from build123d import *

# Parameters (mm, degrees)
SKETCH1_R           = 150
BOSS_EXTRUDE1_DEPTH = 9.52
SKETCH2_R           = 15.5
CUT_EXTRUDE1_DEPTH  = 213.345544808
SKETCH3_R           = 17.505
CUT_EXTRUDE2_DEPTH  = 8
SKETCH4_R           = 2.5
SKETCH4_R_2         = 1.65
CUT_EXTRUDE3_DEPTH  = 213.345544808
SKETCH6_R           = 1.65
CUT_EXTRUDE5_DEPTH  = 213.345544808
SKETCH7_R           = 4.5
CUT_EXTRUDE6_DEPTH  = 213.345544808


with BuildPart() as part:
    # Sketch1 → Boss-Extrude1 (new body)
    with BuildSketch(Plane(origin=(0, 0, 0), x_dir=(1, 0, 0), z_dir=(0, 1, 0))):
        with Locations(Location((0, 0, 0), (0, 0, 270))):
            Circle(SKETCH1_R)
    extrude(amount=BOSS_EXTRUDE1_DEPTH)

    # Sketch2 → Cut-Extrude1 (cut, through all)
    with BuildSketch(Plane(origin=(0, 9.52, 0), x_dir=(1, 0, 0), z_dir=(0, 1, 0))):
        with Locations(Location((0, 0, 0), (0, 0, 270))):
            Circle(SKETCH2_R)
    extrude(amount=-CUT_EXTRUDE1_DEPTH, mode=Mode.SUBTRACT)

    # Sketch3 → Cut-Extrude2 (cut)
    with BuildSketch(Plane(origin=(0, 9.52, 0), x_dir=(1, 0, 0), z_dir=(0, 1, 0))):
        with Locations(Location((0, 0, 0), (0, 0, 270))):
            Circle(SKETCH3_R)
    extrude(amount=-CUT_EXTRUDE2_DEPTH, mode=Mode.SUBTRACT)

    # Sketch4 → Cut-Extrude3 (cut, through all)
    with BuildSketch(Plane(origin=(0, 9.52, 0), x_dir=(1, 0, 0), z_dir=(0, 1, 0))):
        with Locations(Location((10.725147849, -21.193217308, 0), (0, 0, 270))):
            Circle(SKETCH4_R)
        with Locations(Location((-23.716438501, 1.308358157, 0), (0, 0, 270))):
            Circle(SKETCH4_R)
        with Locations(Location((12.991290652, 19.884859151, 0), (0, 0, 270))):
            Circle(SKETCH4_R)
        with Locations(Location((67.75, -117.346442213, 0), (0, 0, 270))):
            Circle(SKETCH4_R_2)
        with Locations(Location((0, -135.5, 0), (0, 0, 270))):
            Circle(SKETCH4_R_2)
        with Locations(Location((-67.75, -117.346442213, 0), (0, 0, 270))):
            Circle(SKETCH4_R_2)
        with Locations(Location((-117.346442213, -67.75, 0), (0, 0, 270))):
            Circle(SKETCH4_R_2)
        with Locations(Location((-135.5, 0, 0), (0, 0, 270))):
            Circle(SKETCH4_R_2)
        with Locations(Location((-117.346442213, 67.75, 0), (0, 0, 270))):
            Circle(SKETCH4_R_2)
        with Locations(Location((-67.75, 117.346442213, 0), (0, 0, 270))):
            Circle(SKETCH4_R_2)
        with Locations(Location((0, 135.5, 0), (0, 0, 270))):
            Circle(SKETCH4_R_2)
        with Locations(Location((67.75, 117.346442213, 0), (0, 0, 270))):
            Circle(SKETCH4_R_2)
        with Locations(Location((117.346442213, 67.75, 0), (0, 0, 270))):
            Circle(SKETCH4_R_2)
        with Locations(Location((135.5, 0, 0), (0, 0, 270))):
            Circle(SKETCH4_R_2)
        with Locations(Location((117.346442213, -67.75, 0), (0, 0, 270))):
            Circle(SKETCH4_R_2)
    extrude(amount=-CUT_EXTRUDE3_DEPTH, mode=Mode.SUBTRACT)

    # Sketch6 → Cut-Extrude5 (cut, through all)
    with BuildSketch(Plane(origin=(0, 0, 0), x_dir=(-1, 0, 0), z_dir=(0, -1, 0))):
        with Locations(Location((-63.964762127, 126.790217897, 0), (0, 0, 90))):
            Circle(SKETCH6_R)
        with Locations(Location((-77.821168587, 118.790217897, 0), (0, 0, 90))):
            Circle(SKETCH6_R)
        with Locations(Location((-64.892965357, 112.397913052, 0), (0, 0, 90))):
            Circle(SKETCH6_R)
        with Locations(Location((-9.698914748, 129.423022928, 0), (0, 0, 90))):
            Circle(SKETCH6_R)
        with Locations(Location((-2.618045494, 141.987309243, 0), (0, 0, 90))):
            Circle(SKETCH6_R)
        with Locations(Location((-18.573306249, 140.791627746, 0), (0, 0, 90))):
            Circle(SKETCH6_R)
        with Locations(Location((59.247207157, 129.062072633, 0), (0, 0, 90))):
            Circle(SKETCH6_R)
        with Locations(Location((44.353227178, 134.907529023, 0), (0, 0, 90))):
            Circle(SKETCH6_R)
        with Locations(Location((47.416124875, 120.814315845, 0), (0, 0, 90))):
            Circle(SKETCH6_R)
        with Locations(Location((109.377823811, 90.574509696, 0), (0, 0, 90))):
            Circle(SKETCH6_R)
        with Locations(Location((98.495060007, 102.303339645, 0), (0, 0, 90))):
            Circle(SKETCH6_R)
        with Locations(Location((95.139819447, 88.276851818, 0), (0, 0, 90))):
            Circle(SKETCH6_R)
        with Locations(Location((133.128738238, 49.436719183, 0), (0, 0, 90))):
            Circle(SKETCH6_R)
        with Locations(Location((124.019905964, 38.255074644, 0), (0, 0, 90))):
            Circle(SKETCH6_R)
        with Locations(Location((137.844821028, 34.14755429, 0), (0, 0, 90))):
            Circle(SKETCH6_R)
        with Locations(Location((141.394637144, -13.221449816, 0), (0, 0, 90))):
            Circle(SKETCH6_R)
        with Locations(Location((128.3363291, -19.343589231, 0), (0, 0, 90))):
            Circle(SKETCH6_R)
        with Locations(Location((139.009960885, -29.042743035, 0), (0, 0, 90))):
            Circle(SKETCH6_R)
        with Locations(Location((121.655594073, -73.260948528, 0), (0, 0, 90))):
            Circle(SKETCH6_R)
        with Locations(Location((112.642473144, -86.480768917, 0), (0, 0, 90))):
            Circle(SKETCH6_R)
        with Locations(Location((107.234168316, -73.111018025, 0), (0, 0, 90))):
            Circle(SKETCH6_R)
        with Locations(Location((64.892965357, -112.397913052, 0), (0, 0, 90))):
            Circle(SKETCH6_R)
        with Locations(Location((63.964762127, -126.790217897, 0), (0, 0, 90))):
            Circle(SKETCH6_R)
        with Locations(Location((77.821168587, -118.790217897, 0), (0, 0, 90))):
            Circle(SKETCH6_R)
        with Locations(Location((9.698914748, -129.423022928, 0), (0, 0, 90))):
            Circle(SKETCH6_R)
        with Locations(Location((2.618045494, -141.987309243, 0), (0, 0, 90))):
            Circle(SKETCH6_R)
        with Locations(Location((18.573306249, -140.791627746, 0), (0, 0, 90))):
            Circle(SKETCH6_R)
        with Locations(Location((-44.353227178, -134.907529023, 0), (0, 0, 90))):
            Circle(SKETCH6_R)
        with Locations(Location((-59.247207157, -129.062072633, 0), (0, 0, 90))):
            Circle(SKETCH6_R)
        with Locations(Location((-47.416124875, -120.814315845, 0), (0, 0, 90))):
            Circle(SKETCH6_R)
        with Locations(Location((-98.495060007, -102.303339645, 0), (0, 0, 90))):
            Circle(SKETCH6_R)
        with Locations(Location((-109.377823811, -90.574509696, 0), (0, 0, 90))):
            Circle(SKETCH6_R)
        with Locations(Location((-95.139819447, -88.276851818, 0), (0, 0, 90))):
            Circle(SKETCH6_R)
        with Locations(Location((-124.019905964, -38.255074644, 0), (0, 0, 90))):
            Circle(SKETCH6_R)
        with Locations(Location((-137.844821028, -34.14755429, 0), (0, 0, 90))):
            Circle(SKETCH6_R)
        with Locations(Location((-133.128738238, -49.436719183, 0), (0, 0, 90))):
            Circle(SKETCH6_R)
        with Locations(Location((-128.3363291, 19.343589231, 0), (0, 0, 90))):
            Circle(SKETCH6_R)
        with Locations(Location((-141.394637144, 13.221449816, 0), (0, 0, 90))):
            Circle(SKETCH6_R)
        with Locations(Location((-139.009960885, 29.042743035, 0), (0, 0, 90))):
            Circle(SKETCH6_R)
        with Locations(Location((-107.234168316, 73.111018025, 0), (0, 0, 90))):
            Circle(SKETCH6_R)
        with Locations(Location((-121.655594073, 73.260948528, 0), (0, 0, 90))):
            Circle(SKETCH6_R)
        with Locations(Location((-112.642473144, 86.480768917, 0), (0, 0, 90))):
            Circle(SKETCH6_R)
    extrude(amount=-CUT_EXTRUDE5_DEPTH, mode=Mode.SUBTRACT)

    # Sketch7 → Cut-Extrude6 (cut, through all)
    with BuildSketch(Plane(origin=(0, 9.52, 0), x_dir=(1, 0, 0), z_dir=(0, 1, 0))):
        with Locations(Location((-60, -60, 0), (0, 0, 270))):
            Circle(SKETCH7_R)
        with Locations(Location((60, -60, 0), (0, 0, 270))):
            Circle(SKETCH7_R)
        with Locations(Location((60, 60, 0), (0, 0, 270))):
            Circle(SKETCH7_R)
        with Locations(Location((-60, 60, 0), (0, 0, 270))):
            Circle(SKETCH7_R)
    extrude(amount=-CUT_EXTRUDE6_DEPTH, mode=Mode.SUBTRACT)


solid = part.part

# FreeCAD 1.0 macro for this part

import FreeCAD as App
import Part
import Sketcher

doc = App.newDocument("Part")
params = doc.addObject("Spreadsheet::Sheet", "Params")
for row, (alias, value) in enumerate([
    ("sketch1_diameter", "300 mm"),
    ("pad1_length", "9.52 mm"),
    ("sketch2_diameter", "31 mm"),
    ("sketch3_diameter", "35.01 mm"),
    ("pocket2_length", "8 mm"),
    ("sketch4_diameter", "5 mm"),
    ("sketch4_diameter2", "3.3 mm"),
    ("sketch5_diameter", "3.3 mm"),
    ("sketch6_diameter", "9 mm"),
], start=1):
    params.set(f"A{row}", alias)
    params.set(f"B{row}", "=" + value)
    params.setAlias(f"B{row}", alias)

body = doc.addObject("PartDesign::Body", "Body")

# Sketch on XZ plane
sketch1 = body.newObject("Sketcher::SketchObject", "Sketch")
sketch1.AttachmentSupport = (doc.getObject("XZ_Plane"), [""])
sketch1.MapMode = "FlatFace"
sketch1.addGeometry(Part.Circle(App.Vector(0, 0, 0), App.Vector(0, 0, 1), 150), False)
sketch1.addConstraint([
    Sketcher.Constraint("Coincident", 0, 3, -1, 1),
    Sketcher.Constraint("Diameter", 0, 300.0),
])
sketch1.setExpression("Constraints[1]", "Params.sketch1_diameter")
pad1 = body.newObject("PartDesign::Pad", "Pad")
pad1.Profile = sketch1
pad1.setExpression("Length", "Params.pad1_length")
pad1.Reversed = True

# Sketch on XZ plane
sketch2 = body.newObject("Sketcher::SketchObject", "Sketch001")
sketch2.AttachmentSupport = (doc.getObject("XZ_Plane"), [""])
sketch2.MapMode = "FlatFace"
sketch2.AttachmentOffset = App.Placement(App.Vector(0, 0, -9.52), App.Rotation())
sketch2.addGeometry(Part.Circle(App.Vector(0, 0, 0), App.Vector(0, 0, 1), 16), False)
sketch2.addConstraint([
    Sketcher.Constraint("Coincident", 0, 3, -1, 1),
    Sketcher.Constraint("Diameter", 0, 31.0),
])
sketch2.setExpression("Constraints[1]", "Params.sketch2_diameter")
pocket1 = body.newObject("PartDesign::Pocket", "Pocket")
pocket1.Profile = sketch2
pocket1.Type = "ThroughAll"
pocket1.Reversed = True

# Sketch on XZ plane
sketch3 = body.newObject("Sketcher::SketchObject", "Sketch002")
sketch3.AttachmentSupport = (doc.getObject("XZ_Plane"), [""])
sketch3.MapMode = "FlatFace"
sketch3.AttachmentOffset = App.Placement(App.Vector(0, 0, -9.52), App.Rotation())
sketch3.addGeometry(Part.Circle(App.Vector(0, 0, 0), App.Vector(0, 0, 1), 18), False)
sketch3.addConstraint([
    Sketcher.Constraint("Coincident", 0, 3, -1, 1),
    Sketcher.Constraint("Diameter", 0, 35.01),
])
sketch3.setExpression("Constraints[1]", "Params.sketch3_diameter")
pocket2 = body.newObject("PartDesign::Pocket", "Pocket001")
pocket2.Profile = sketch3
pocket2.setExpression("Length", "Params.pocket2_length")
pocket2.Reversed = True

# Sketch on XZ plane
sketch4 = body.newObject("Sketcher::SketchObject", "Sketch003")
sketch4.AttachmentSupport = (doc.getObject("XZ_Plane"), [""])
sketch4.MapMode = "FlatFace"
sketch4.AttachmentOffset = App.Placement(App.Vector(0, 0, -9.52), App.Rotation())
sketch4.addGeometry([
    Part.Circle(App.Vector(10.7, 21.2, 0), App.Vector(0, 0, 1), 2.5),  # 0
    Part.Circle(App.Vector(-23.7, -1.3, 0), App.Vector(0, 0, 1), 2.5),  # 1
    Part.Circle(App.Vector(13, -19.9, 0), App.Vector(0, 0, 1), 2.5),  # 2
    Part.Circle(App.Vector(67.8, 117.3, 0), App.Vector(0, 0, 1), 1.6),  # 3
    Part.Circle(App.Vector(0, 135.5, 0), App.Vector(0, 0, 1), 1.6),  # 4
    Part.Circle(App.Vector(-67.8, 117.3, 0), App.Vector(0, 0, 1), 1.6),  # 5
    Part.Circle(App.Vector(-117.3, 67.8, 0), App.Vector(0, 0, 1), 1.6),  # 6
    Part.Circle(App.Vector(-135.5, 0, 0), App.Vector(0, 0, 1), 1.6),  # 7
    Part.Circle(App.Vector(-117.3, -67.8, 0), App.Vector(0, 0, 1), 1.6),  # 8
    Part.Circle(App.Vector(-67.8, -117.3, 0), App.Vector(0, 0, 1), 1.6),  # 9
    Part.Circle(App.Vector(0, -135.5, 0), App.Vector(0, 0, 1), 1.6),  # 10
    Part.Circle(App.Vector(67.8, -117.3, 0), App.Vector(0, 0, 1), 1.6),  # 11
    Part.Circle(App.Vector(117.3, -67.8, 0), App.Vector(0, 0, 1), 1.6),  # 12
    Part.Circle(App.Vector(135.5, 0, 0), App.Vector(0, 0, 1), 1.6),  # 13
    Part.Circle(App.Vector(117.3, 67.8, 0), App.Vector(0, 0, 1), 1.6),  # 14
], False)
sketch4.addConstraint([
    Sketcher.Constraint("Equal", 0, 1),
    Sketcher.Constraint("Equal", 1, 2),
    Sketcher.Constraint("Equal", 3, 4),
    Sketcher.Constraint("Equal", 4, 5),
    Sketcher.Constraint("Equal", 5, 6),
    Sketcher.Constraint("Equal", 6, 7),
    Sketcher.Constraint("Equal", 7, 8),
    Sketcher.Constraint("Equal", 8, 9),
    Sketcher.Constraint("Equal", 9, 10),
    Sketcher.Constraint("Equal", 10, 11),
    Sketcher.Constraint("Equal", 11, 12),
    Sketcher.Constraint("Equal", 12, 13),
    Sketcher.Constraint("Equal", 13, 14),
    Sketcher.Constraint("Symmetric", 3, 3, 9, 3, -1, 1),
    Sketcher.Constraint("Symmetric", 4, 3, 10, 3, -1, 1),
    Sketcher.Constraint("Symmetric", 5, 3, 11, 3, -1, 1),
    Sketcher.Constraint("Symmetric", 6, 3, 12, 3, -1, 1),
    Sketcher.Constraint("Symmetric", 7, 3, 13, 3, -1, 1),
    Sketcher.Constraint("Symmetric", 8, 3, 14, 3, -1, 1),
    Sketcher.Constraint("Symmetric", 3, 3, 5, 3, -2),
    Sketcher.Constraint("Symmetric", 8, 3, 12, 3, -2),
    Sketcher.Constraint("PointOnObject", 4, 3, -2),
    Sketcher.Constraint("PointOnObject", 7, 3, -1),
    Sketcher.Constraint("Diameter", 0, 5.0),
    Sketcher.Constraint("Diameter", 3, 3.3),
    Sketcher.Constraint("DistanceY", -1, 1, 4, 3, 135.5),
    Sketcher.Constraint("DistanceX", 7, 3, -1, 1, 135.5),
    Sketcher.Constraint("DistanceX", 5, 3, 3, 3, 135.5),
    Sketcher.Constraint("DistanceY", 8, 3, 6, 3, 135.5),
    Sketcher.Constraint("DistanceY", 2, 3, 1, 3, 18.576501),
    Sketcher.Constraint("DistanceY", 2, 3, 3, 3, 137.231301),
    Sketcher.Constraint("DistanceX", 1, 3, -1, 1, 23.716439),
    Sketcher.Constraint("DistanceY", 1, 3, -1, 1, 1.308358),
    Sketcher.Constraint("DistanceX", -1, 1, 2, 3, 12.991291),
    Sketcher.Constraint("DistanceX", 6, 3, 0, 3, 128.07159),
    Sketcher.Constraint("DistanceY", 9, 3, 0, 3, 138.53966),
    Sketcher.Constraint("DistanceX", 2, 3, 12, 3, 104.355152),
])
sketch4.setExpression("Constraints[23]", "Params.sketch4_diameter")
sketch4.setExpression("Constraints[24]", "Params.sketch4_diameter2")
pocket3 = body.newObject("PartDesign::Pocket", "Pocket002")
pocket3.Profile = sketch4
pocket3.Type = "ThroughAll"
pocket3.Reversed = True

# Sketch on XZ plane
sketch5 = body.newObject("Sketcher::SketchObject", "Sketch004")
sketch5.AttachmentSupport = (doc.getObject("XZ_Plane"), [""])
sketch5.MapMode = "FlatFace"
sketch5.addGeometry([
    Part.Circle(App.Vector(64, -126.8, 0), App.Vector(0, 0, 1), 1.6),  # 0
    Part.Circle(App.Vector(77.8, -118.8, 0), App.Vector(0, 0, 1), 1.6),  # 1
    Part.Circle(App.Vector(64.9, -112.4, 0), App.Vector(0, 0, 1), 1.6),  # 2
    Part.Circle(App.Vector(9.7, -129.4, 0), App.Vector(0, 0, 1), 1.6),  # 3
    Part.Circle(App.Vector(2.6, -142, 0), App.Vector(0, 0, 1), 1.6),  # 4
    Part.Circle(App.Vector(18.6, -140.8, 0), App.Vector(0, 0, 1), 1.6),  # 5
    Part.Circle(App.Vector(-59.2, -129.1, 0), App.Vector(0, 0, 1), 1.6),  # 6
    Part.Circle(App.Vector(-44.4, -134.9, 0), App.Vector(0, 0, 1), 1.6),  # 7
    Part.Circle(App.Vector(-47.4, -120.8, 0), App.Vector(0, 0, 1), 1.6),  # 8
    Part.Circle(App.Vector(-109.4, -90.6, 0), App.Vector(0, 0, 1), 1.6),  # 9
    Part.Circle(App.Vector(-98.5, -102.3, 0), App.Vector(0, 0, 1), 1.6),  # 10
    Part.Circle(App.Vector(-95.1, -88.3, 0), App.Vector(0, 0, 1), 1.6),  # 11
    Part.Circle(App.Vector(-133.1, -49.4, 0), App.Vector(0, 0, 1), 1.6),  # 12
    Part.Circle(App.Vector(-124, -38.3, 0), App.Vector(0, 0, 1), 1.6),  # 13
    Part.Circle(App.Vector(-137.8, -34.1, 0), App.Vector(0, 0, 1), 1.6),  # 14
    Part.Circle(App.Vector(-141.4, 13.2, 0), App.Vector(0, 0, 1), 1.6),  # 15
    Part.Circle(App.Vector(-128.3, 19.3, 0), App.Vector(0, 0, 1), 1.6),  # 16
    Part.Circle(App.Vector(-139, 29, 0), App.Vector(0, 0, 1), 1.6),  # 17
    Part.Circle(App.Vector(-121.7, 73.3, 0), App.Vector(0, 0, 1), 1.6),  # 18
    Part.Circle(App.Vector(-112.6, 86.5, 0), App.Vector(0, 0, 1), 1.6),  # 19
    Part.Circle(App.Vector(-107.2, 73.1, 0), App.Vector(0, 0, 1), 1.6),  # 20
    Part.Circle(App.Vector(-64.9, 112.4, 0), App.Vector(0, 0, 1), 1.6),  # 21
    Part.Circle(App.Vector(-64, 126.8, 0), App.Vector(0, 0, 1), 1.6),  # 22
    Part.Circle(App.Vector(-77.8, 118.8, 0), App.Vector(0, 0, 1), 1.6),  # 23
    Part.Circle(App.Vector(-9.7, 129.4, 0), App.Vector(0, 0, 1), 1.6),  # 24
    Part.Circle(App.Vector(-2.6, 142, 0), App.Vector(0, 0, 1), 1.6),  # 25
    Part.Circle(App.Vector(-18.6, 140.8, 0), App.Vector(0, 0, 1), 1.6),  # 26
    Part.Circle(App.Vector(44.4, 134.9, 0), App.Vector(0, 0, 1), 1.6),  # 27
    Part.Circle(App.Vector(59.2, 129.1, 0), App.Vector(0, 0, 1), 1.6),  # 28
    Part.Circle(App.Vector(47.4, 120.8, 0), App.Vector(0, 0, 1), 1.6),  # 29
    Part.Circle(App.Vector(98.5, 102.3, 0), App.Vector(0, 0, 1), 1.6),  # 30
    Part.Circle(App.Vector(109.4, 90.6, 0), App.Vector(0, 0, 1), 1.6),  # 31
    Part.Circle(App.Vector(95.1, 88.3, 0), App.Vector(0, 0, 1), 1.6),  # 32
    Part.Circle(App.Vector(124, 38.3, 0), App.Vector(0, 0, 1), 1.6),  # 33
    Part.Circle(App.Vector(137.8, 34.1, 0), App.Vector(0, 0, 1), 1.6),  # 34
    Part.Circle(App.Vector(133.1, 49.4, 0), App.Vector(0, 0, 1), 1.6),  # 35
    Part.Circle(App.Vector(128.3, -19.3, 0), App.Vector(0, 0, 1), 1.6),  # 36
    Part.Circle(App.Vector(141.4, -13.2, 0), App.Vector(0, 0, 1), 1.6),  # 37
    Part.Circle(App.Vector(139, -29, 0), App.Vector(0, 0, 1), 1.6),  # 38
    Part.Circle(App.Vector(107.2, -73.1, 0), App.Vector(0, 0, 1), 1.6),  # 39
    Part.Circle(App.Vector(121.7, -73.3, 0), App.Vector(0, 0, 1), 1.6),  # 40
    Part.Circle(App.Vector(112.6, -86.5, 0), App.Vector(0, 0, 1), 1.6),  # 41
], False)
sketch5.addConstraint([
    Sketcher.Constraint("Equal", 0, 1),
    Sketcher.Constraint("Equal", 1, 2),
    Sketcher.Constraint("Equal", 2, 3),
    Sketcher.Constraint("Equal", 3, 4),
    Sketcher.Constraint("Equal", 4, 5),
    Sketcher.Constraint("Equal", 5, 6),
    Sketcher.Constraint("Equal", 6, 7),
    Sketcher.Constraint("Equal", 7, 8),
    Sketcher.Constraint("Equal", 8, 9),
    Sketcher.Constraint("Equal", 9, 10),
    Sketcher.Constraint("Equal", 10, 11),
    Sketcher.Constraint("Equal", 11, 12),
    Sketcher.Constraint("Equal", 12, 13),
    Sketcher.Constraint("Equal", 13, 14),
    Sketcher.Constraint("Equal", 14, 15),
    Sketcher.Constraint("Equal", 15, 16),
    Sketcher.Constraint("Equal", 16, 17),
    Sketcher.Constraint("Equal", 17, 18),
    Sketcher.Constraint("Equal", 18, 19),
    Sketcher.Constraint("Equal", 19, 20),
    Sketcher.Constraint("Equal", 20, 21),
    Sketcher.Constraint("Equal", 21, 22),
    Sketcher.Constraint("Equal", 22, 23),
    Sketcher.Constraint("Equal", 23, 24),
    Sketcher.Constraint("Equal", 24, 25),
    Sketcher.Constraint("Equal", 25, 26),
    Sketcher.Constraint("Equal", 26, 27),
    Sketcher.Constraint("Equal", 27, 28),
    Sketcher.Constraint("Equal", 28, 29),
    Sketcher.Constraint("Equal", 29, 30),
    Sketcher.Constraint("Equal", 30, 31),
    Sketcher.Constraint("Equal", 31, 32),
    Sketcher.Constraint("Equal", 32, 33),
    Sketcher.Constraint("Equal", 33, 34),
    Sketcher.Constraint("Equal", 34, 35),
    Sketcher.Constraint("Equal", 35, 36),
    Sketcher.Constraint("Equal", 36, 37),
    Sketcher.Constraint("Equal", 37, 38),
    Sketcher.Constraint("Equal", 38, 39),
    Sketcher.Constraint("Equal", 39, 40),
    Sketcher.Constraint("Equal", 40, 41),
    Sketcher.Constraint("Symmetric", 2, 3, 21, 3, -1, 1),
    Sketcher.Constraint("Symmetric", 0, 3, 22, 3, -1, 1),
    Sketcher.Constraint("Symmetric", 1, 3, 23, 3, -1, 1),
    Sketcher.Constraint("Symmetric", 3, 3, 24, 3, -1, 1),
    Sketcher.Constraint("Symmetric", 4, 3, 25, 3, -1, 1),
    Sketcher.Constraint("Symmetric", 5, 3, 26, 3, -1, 1),
    Sketcher.Constraint("Symmetric", 7, 3, 27, 3, -1, 1),
    Sketcher.Constraint("Symmetric", 6, 3, 28, 3, -1, 1),
    Sketcher.Constraint("Symmetric", 8, 3, 29, 3, -1, 1),
    Sketcher.Constraint("Symmetric", 10, 3, 30, 3, -1, 1),
    Sketcher.Constraint("Symmetric", 9, 3, 31, 3, -1, 1),
    Sketcher.Constraint("Symmetric", 11, 3, 32, 3, -1, 1),
    Sketcher.Constraint("Symmetric", 13, 3, 33, 3, -1, 1),
    Sketcher.Constraint("Symmetric", 14, 3, 34, 3, -1, 1),
    Sketcher.Constraint("Symmetric", 12, 3, 35, 3, -1, 1),
    Sketcher.Constraint("Symmetric", 16, 3, 36, 3, -1, 1),
    Sketcher.Constraint("Symmetric", 15, 3, 37, 3, -1, 1),
    Sketcher.Constraint("Symmetric", 17, 3, 38, 3, -1, 1),
    Sketcher.Constraint("Symmetric", 20, 3, 39, 3, -1, 1),
    Sketcher.Constraint("Symmetric", 18, 3, 40, 3, -1, 1),
    Sketcher.Constraint("Symmetric", 19, 3, 41, 3, -1, 1),
    Sketcher.Constraint("Diameter", 0, 3.3),
    Sketcher.Constraint("DistanceY", 0, 3, 1, 3, 8.0),
    Sketcher.Constraint("DistanceX", 14, 3, 11, 3, 42.705002),
    Sketcher.Constraint("DistanceX", 20, 3, 23, 3, 29.413),
    Sketcher.Constraint("DistanceY", 5, 3, 7, 3, 5.884099),
    Sketcher.Constraint("DistanceX", 9, 3, 8, 3, 61.961699),
    Sketcher.Constraint("DistanceY", 4, 3, 9, 3, 51.4128),
    Sketcher.Constraint("DistanceX", 13, 3, 6, 3, 64.772699),
    Sketcher.Constraint("DistanceX", 15, 3, 12, 3, 8.265899),
    Sketcher.Constraint("DistanceY", 11, 3, 15, 3, 101.498302),
    Sketcher.Constraint("DistanceY", 9, 3, 16, 3, 109.918099),
    Sketcher.Constraint("DistanceY", 15, 3, 18, 3, 60.039499),
    Sketcher.Constraint("DistanceY", 20, 3, 22, 3, 53.6792),
    Sketcher.Constraint("DistanceX", 17, 3, 22, 3, 75.045199),
    Sketcher.Constraint("DistanceX", -1, 1, 1, 3, 77.821169),
    Sketcher.Constraint("DistanceY", 4, 3, -1, 1, 141.987309),
    Sketcher.Constraint("DistanceY", 7, 3, -1, 1, 134.907529),
    Sketcher.Constraint("DistanceX", 10, 3, -1, 1, 98.49506),
    Sketcher.Constraint("DistanceY", 10, 3, -1, 1, 102.30334),
    Sketcher.Constraint("DistanceX", 11, 3, -1, 1, 95.139819),
    Sketcher.Constraint("DistanceY", 11, 3, -1, 1, 88.276852),
    Sketcher.Constraint("DistanceX", 12, 3, -1, 1, 133.128738),
    Sketcher.Constraint("DistanceY", 12, 3, -1, 1, 49.436719),
    Sketcher.Constraint("DistanceX", 16, 3, -1, 1, 128.336329),
    Sketcher.Constraint("DistanceX", 17, 3, -1, 1, 139.009961),
    Sketcher.Constraint("DistanceY", -1, 1, 19, 3, 86.480769),
    Sketcher.Constraint("DistanceY", -1, 1, 20, 3, 73.111018),
    Sketcher.Constraint("DistanceX", 3, 3, 2, 3, 55.194051),
    Sketcher.Constraint("DistanceY", 3, 3, 2, 3, 17.02511),
    Sketcher.Constraint("DistanceX", 4, 3, 3, 3, 7.080869),
    Sketcher.Constraint("DistanceX", 3, 3, 5, 3, 8.874392),
    Sketcher.Constraint("DistanceX", 6, 3, 3, 3, 68.946122),
    Sketcher.Constraint("DistanceY", 3, 3, 6, 3, 0.36095),
    Sketcher.Constraint("DistanceX", 6, 3, 0, 3, 123.211969),
    Sketcher.Constraint("DistanceX", 6, 3, 7, 3, 14.89398),
    Sketcher.Constraint("DistanceX", 8, 3, 4, 3, 50.03417),
    Sketcher.Constraint("DistanceY", 5, 3, 8, 3, 19.977312),
    Sketcher.Constraint("DistanceY", 6, 3, 11, 3, 40.785221),
    Sketcher.Constraint("DistanceY", 13, 3, 14, 3, 4.10752),
    Sketcher.Constraint("DistanceX", 13, 3, 18, 3, 2.364312),
    Sketcher.Constraint("DistanceX", 18, 3, 19, 3, 9.013121),
    Sketcher.Constraint("DistanceY", 17, 3, 21, 3, 83.35517),
    Sketcher.Constraint("DistanceY", 33, 3, 29, 3, 82.559241),
])
sketch5.setExpression("Constraints[62]", "Params.sketch5_diameter")
pocket4 = body.newObject("PartDesign::Pocket", "Pocket003")
pocket4.Profile = sketch5
pocket4.Type = "ThroughAll"

# Sketch on XZ plane
sketch6 = body.newObject("Sketcher::SketchObject", "Sketch005")
sketch6.AttachmentSupport = (doc.getObject("XZ_Plane"), [""])
sketch6.MapMode = "FlatFace"
sketch6.AttachmentOffset = App.Placement(App.Vector(0, 0, -9.52), App.Rotation())
sketch6.addGeometry([
    Part.Circle(App.Vector(-60, 60, 0), App.Vector(0, 0, 1), 4.5),
    Part.Circle(App.Vector(60, 60, 0), App.Vector(0, 0, 1), 4.5),
    Part.Circle(App.Vector(60, -60, 0), App.Vector(0, 0, 1), 4.5),
    Part.Circle(App.Vector(-60, -60, 0), App.Vector(0, 0, 1), 4.5),
], False)
sketch6.addConstraint([
    Sketcher.Constraint("Equal", 0, 1),
    Sketcher.Constraint("Equal", 1, 2),
    Sketcher.Constraint("Equal", 2, 3),
    Sketcher.Constraint("Symmetric", 0, 3, 2, 3, -1, 1),
    Sketcher.Constraint("Symmetric", 1, 3, 3, 3, -1, 1),
    Sketcher.Constraint("Symmetric", 0, 3, 1, 3, -2),
    Sketcher.Constraint("Diameter", 0, 9.0),
    Sketcher.Constraint("DistanceX", 0, 3, -1, 1, 60.0),
    Sketcher.Constraint("DistanceY", -1, 1, 0, 3, 60.0),
])
sketch6.setExpression("Constraints[6]", "Params.sketch6_diameter")
pocket5 = body.newObject("PartDesign::Pocket", "Pocket004")
pocket5.Profile = sketch6
pocket5.Type = "ThroughAll"
pocket5.Reversed = True

doc.recompute()
